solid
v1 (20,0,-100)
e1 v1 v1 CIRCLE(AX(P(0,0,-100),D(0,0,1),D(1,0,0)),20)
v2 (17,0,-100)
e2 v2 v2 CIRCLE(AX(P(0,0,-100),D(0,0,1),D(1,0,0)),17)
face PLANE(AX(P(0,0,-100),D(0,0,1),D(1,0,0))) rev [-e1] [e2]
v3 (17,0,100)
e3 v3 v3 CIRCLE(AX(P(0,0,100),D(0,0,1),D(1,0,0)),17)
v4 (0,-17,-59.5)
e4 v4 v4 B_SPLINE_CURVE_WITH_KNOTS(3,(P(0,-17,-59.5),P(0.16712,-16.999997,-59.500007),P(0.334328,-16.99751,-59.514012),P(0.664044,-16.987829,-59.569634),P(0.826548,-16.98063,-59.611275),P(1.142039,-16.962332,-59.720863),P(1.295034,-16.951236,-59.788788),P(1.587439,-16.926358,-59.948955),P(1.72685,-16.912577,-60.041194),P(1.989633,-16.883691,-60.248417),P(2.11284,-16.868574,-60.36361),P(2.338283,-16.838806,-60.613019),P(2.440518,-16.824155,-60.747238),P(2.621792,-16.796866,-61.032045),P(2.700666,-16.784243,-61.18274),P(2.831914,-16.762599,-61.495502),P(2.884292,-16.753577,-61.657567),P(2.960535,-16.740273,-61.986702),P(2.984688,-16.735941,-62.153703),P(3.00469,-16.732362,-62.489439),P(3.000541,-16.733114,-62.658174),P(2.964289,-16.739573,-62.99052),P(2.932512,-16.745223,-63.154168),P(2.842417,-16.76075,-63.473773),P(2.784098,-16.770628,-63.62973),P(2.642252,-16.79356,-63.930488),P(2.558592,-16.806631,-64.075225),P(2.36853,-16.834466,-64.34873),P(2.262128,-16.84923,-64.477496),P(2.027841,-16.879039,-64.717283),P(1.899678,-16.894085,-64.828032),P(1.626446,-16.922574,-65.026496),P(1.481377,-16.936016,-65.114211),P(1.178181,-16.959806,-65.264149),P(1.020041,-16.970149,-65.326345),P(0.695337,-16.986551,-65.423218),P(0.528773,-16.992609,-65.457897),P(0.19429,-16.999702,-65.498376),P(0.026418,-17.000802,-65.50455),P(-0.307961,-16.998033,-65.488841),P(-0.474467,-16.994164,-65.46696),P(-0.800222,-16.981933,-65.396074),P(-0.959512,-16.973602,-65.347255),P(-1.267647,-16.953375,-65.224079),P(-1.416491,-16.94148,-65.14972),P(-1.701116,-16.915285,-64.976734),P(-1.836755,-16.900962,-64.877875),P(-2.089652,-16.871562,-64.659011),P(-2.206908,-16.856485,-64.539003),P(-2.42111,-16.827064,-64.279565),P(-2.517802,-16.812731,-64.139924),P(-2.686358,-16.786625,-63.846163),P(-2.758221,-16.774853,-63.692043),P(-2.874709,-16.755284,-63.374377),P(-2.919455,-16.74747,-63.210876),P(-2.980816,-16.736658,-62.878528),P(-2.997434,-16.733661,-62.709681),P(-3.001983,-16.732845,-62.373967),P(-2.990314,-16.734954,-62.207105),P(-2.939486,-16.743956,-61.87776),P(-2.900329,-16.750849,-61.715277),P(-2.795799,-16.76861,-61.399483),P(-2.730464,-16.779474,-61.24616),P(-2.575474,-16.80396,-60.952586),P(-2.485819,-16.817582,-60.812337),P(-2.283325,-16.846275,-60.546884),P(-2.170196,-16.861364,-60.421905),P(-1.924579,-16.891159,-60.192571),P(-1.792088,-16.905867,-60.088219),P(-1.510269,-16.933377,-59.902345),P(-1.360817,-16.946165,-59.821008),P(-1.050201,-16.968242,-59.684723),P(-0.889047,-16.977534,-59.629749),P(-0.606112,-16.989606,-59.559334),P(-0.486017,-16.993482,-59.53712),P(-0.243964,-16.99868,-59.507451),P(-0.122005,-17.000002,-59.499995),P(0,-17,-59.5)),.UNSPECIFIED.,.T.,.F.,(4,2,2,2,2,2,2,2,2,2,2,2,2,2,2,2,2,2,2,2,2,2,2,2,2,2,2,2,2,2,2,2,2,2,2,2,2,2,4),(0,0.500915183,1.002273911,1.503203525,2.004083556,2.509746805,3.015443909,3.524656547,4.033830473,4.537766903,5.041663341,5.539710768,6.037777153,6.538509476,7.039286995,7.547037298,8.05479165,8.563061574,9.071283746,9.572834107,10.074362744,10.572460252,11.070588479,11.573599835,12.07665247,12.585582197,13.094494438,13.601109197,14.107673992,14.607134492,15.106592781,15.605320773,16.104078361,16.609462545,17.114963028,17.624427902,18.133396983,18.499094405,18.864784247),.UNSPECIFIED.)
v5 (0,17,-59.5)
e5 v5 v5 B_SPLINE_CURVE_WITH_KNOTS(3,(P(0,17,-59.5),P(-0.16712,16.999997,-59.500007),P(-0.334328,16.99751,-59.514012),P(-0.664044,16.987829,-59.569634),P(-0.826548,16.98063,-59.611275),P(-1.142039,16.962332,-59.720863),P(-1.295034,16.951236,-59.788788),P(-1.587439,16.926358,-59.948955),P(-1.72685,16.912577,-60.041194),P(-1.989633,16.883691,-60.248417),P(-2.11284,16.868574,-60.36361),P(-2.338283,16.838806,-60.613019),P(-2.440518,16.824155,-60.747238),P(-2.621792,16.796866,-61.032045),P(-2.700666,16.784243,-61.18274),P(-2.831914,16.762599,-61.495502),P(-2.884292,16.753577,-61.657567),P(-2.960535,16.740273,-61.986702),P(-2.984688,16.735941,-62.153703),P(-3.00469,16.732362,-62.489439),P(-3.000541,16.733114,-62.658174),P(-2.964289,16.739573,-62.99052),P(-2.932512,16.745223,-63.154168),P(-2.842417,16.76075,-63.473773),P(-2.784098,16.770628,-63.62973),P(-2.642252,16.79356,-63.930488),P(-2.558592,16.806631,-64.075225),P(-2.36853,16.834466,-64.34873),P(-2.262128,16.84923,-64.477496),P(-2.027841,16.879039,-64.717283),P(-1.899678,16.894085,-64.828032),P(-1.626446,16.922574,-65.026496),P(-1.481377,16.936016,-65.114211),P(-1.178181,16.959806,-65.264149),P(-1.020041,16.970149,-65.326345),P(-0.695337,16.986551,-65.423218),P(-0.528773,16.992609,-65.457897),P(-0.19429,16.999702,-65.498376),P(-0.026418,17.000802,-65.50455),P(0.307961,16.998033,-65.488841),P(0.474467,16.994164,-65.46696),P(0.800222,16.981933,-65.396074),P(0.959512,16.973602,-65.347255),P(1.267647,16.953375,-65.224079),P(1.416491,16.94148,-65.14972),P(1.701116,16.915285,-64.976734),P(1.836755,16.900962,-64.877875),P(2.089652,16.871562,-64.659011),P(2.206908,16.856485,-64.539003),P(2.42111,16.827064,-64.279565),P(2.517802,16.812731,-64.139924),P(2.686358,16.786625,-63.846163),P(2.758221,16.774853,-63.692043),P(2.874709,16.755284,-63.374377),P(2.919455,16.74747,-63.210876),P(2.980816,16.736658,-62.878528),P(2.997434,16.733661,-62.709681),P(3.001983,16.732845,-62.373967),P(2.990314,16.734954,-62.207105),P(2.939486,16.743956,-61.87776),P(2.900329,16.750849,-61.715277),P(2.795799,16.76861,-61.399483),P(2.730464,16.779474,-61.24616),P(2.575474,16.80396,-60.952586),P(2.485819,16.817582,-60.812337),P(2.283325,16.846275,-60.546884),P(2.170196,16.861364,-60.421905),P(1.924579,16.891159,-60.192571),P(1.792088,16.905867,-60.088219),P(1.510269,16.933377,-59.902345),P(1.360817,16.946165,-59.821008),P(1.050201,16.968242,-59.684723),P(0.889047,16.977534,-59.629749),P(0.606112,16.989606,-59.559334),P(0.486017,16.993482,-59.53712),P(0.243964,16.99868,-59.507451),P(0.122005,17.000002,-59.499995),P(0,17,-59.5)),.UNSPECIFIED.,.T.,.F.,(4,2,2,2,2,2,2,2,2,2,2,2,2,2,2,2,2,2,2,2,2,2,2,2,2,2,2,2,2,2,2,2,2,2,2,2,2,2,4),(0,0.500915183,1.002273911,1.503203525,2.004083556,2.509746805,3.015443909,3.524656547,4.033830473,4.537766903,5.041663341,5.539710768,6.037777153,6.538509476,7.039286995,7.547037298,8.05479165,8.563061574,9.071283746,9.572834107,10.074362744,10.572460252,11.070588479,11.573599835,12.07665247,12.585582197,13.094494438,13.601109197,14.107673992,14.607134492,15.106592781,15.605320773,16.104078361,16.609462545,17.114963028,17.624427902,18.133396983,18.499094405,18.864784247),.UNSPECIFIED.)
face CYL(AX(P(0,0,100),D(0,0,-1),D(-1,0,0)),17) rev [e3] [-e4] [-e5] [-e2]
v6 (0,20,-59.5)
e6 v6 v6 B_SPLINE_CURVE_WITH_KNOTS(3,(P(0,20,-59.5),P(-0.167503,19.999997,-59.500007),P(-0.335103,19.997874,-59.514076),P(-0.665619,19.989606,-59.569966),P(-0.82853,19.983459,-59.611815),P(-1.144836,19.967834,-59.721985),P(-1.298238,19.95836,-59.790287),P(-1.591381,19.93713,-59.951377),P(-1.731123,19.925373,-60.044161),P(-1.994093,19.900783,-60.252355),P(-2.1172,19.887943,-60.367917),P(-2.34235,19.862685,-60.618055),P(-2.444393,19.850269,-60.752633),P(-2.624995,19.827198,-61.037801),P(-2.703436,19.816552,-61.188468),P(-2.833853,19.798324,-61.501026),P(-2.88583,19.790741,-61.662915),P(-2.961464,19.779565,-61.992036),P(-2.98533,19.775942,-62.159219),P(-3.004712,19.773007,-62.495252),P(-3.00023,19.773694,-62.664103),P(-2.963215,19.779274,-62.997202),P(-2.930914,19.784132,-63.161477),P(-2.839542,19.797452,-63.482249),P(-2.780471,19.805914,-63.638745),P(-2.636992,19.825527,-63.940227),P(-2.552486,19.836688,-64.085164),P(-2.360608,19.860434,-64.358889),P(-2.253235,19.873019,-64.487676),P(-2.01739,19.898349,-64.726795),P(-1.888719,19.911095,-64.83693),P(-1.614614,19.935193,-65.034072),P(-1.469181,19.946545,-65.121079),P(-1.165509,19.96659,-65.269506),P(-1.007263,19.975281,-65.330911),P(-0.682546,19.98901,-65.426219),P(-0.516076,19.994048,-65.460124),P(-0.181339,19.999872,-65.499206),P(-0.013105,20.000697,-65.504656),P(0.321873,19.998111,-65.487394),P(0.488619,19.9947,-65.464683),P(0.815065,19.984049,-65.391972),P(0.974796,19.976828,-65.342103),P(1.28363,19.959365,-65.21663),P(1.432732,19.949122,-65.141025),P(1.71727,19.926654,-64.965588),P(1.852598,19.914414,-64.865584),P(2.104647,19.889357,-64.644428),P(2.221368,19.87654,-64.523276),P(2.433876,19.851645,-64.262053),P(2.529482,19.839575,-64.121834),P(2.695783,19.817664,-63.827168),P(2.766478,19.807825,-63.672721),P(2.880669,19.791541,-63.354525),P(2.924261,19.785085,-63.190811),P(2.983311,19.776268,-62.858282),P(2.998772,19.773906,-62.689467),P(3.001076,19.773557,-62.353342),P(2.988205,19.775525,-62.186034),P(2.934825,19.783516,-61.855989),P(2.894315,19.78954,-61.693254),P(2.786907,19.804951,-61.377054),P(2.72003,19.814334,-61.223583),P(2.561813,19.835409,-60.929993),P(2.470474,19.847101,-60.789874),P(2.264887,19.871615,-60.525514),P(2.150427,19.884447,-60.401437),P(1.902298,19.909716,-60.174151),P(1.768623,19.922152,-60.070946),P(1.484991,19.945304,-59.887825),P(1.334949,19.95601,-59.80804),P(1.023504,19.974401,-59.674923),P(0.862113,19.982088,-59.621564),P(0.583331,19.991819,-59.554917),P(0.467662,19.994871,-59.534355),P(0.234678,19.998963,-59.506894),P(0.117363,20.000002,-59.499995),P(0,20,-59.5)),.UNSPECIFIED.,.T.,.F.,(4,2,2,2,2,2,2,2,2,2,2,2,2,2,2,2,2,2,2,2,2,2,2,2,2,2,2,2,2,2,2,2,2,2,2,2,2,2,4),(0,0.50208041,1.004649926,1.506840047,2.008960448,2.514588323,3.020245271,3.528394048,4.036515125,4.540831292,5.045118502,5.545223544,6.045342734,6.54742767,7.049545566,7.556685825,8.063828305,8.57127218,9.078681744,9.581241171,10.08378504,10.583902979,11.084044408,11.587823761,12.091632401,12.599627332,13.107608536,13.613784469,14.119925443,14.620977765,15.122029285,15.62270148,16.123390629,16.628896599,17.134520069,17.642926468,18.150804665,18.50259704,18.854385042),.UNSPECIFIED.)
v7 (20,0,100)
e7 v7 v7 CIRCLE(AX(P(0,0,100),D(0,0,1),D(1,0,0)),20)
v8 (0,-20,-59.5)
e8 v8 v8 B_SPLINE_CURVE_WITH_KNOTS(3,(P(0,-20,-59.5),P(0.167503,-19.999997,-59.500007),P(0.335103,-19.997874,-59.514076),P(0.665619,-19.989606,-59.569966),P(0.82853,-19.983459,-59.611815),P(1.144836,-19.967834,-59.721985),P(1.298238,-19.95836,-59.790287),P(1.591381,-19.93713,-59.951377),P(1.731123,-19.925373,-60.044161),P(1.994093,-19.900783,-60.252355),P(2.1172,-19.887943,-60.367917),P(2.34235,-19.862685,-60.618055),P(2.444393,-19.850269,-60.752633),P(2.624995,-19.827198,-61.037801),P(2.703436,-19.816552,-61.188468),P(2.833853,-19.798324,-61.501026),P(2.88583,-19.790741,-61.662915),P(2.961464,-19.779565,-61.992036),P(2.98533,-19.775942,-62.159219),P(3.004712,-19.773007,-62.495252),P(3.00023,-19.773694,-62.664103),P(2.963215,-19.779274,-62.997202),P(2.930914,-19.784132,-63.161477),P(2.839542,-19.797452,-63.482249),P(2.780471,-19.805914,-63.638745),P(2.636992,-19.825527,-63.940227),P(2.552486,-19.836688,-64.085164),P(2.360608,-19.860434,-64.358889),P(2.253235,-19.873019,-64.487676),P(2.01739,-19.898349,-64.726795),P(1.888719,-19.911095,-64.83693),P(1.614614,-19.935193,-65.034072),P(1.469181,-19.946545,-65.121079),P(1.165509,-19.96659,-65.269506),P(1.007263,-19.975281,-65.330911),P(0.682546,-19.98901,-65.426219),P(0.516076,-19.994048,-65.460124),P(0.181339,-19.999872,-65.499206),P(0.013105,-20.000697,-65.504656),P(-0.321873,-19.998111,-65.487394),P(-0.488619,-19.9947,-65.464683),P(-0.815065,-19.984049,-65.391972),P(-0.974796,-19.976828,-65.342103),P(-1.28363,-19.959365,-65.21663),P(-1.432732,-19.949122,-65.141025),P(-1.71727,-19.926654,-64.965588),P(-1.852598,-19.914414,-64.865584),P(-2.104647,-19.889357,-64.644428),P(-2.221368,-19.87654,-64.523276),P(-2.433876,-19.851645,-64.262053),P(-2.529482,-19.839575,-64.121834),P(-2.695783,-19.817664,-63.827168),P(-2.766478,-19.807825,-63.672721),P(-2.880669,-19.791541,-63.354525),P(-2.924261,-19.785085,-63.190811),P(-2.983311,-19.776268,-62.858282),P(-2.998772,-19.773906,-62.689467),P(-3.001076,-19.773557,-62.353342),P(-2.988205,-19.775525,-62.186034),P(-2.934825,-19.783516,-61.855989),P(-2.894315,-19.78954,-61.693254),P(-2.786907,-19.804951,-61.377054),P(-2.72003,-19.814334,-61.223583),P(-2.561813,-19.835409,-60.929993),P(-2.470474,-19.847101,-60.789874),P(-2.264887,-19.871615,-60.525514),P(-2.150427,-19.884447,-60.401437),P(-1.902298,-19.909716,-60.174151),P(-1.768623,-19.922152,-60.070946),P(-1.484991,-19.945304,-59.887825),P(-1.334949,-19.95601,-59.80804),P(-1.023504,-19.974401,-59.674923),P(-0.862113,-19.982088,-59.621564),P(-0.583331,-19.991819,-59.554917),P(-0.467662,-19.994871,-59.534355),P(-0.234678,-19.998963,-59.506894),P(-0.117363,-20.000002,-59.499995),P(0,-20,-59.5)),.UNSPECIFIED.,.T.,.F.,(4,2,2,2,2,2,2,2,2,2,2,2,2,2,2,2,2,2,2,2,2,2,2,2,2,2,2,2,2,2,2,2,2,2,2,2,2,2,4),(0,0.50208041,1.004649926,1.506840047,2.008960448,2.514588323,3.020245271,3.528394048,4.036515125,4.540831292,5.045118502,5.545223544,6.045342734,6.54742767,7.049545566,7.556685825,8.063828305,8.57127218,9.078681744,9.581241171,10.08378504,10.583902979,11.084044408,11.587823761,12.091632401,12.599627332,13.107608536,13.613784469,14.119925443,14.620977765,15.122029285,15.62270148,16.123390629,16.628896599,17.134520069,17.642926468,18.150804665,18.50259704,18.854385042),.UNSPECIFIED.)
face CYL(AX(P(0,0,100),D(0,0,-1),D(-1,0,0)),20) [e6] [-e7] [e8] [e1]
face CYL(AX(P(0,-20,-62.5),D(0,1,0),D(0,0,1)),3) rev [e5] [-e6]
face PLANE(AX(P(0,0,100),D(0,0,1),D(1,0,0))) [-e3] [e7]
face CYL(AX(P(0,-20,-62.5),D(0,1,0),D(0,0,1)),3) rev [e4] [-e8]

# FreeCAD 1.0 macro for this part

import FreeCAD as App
import Part
import Sketcher

V = App.Vector

doc = App.newDocument("Part")
body = doc.addObject("PartDesign::Body", "Body")

# Sketch on XY plane
sketch1 = doc.addObject("Sketcher::SketchObject", "Sketch")
body.addObject(sketch1)
sketch1.AttachmentSupport = (doc.XY_Plane, [""])
sketch1.MapMode = "FlatFace"
sketch1.addGeometry(Part.Circle(V(0, 0, 0), V(0, 0, 1), 20), False)
sketch1.addGeometry(Part.Circle(V(0, 0, 0), V(0, 0, 1), 17), False)
sketch1.addConstraint(Sketcher.Constraint("Coincident", 0, 3, -1, 1))
sketch1.addConstraint(Sketcher.Constraint("Coincident", 1, 3, -1, 1))
sketch1.addConstraint(Sketcher.Constraint("Diameter", 0, 40.0))
sketch1.addConstraint(Sketcher.Constraint("Diameter", 1, 34.0))
pad1 = doc.addObject("PartDesign::Pad", "Pad")
body.addObject(pad1)
pad1.Profile = sketch1
pad1.Length = 200
pad1.Midplane = True

# Sketch on XZ plane
sketch2 = doc.addObject("Sketcher::SketchObject", "Sketch001")
body.addObject(sketch2)
sketch2.AttachmentSupport = (doc.XZ_Plane, [""])
sketch2.MapMode = "FlatFace"
sketch2.addGeometry(Part.Circle(V(0, -62.5, 0), V(0, 0, 1), 3), False)
sketch2.addConstraint(Sketcher.Constraint("PointOnObject", 0, 3, -2))
sketch2.addConstraint(Sketcher.Constraint("Diameter", 0, 6.0))
sketch2.addConstraint(Sketcher.Constraint("DistanceY", 0, 3, -1, 1, 62.5))
pocket1 = doc.addObject("PartDesign::Pocket", "Pocket")
body.addObject(pocket1)
pocket1.Profile = sketch2
pocket1.Type = "ThroughAll"
pocket1.Midplane = True

doc.recompute()
